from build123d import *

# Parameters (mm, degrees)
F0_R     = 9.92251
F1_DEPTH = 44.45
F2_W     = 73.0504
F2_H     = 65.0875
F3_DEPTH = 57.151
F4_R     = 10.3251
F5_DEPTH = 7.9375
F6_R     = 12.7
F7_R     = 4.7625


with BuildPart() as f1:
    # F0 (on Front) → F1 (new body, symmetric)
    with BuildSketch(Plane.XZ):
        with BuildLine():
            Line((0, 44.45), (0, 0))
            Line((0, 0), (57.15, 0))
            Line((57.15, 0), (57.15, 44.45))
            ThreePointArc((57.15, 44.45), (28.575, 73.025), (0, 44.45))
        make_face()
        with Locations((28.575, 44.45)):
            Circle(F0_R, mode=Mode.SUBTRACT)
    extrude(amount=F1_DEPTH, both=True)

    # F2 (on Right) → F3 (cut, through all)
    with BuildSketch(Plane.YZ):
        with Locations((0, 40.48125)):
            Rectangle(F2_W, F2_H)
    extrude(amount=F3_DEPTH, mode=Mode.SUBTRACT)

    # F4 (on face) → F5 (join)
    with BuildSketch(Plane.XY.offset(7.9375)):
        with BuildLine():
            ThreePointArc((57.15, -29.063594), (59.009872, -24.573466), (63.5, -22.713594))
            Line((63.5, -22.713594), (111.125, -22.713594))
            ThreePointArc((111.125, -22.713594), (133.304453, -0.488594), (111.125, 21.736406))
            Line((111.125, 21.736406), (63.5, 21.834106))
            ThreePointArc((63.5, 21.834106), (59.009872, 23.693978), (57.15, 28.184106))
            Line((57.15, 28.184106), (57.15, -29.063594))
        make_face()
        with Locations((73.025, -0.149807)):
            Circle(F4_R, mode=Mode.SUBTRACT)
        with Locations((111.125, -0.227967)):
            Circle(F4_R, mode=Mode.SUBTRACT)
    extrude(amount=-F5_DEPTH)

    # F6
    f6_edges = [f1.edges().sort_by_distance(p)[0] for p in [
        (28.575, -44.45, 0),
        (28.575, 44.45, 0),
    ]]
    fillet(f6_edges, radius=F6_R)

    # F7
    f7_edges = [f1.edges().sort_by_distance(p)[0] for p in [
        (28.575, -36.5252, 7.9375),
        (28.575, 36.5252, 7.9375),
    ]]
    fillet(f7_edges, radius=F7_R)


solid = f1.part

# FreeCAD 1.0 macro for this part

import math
import FreeCAD as App
import Part
import Sketcher
Q = App.Units.Quantity


def edges_at(feature, points):
    """Names of the edges that pass closest to the given points."""
    edges = feature.Shape.Edges
    near = lambda p: min(range(len(edges)), key=lambda i: edges[i].distToShape(Part.Vertex(*p))[0])
    return sorted({f"Edge{near(p) + 1}" for p in points})


def add_polygon(sketch, points):
    """Adds a closed chain of lines whose ends are joined by coincident constraints."""
    first, n = sketch.GeometryCount, len(points)
    for a, b in zip(points, points[1:] + points[:1]):
        sketch.addGeometry(Part.LineSegment(App.Vector(*a, 0), App.Vector(*b, 0)), False)
    for i in range(n):
        sketch.addConstraint(Sketcher.Constraint("Coincident", first + i, 2, first + (i + 1) % n, 1))

doc = App.newDocument("Part")
body = doc.addObject("PartDesign::Body", "Body")

# Sketch on XZ plane
sketch1 = body.newObject("Sketcher::SketchObject", "Sketch")
sketch1.AttachmentSupport = (doc.getObject("XZ_Plane"), [""])
sketch1.MapMode = "FlatFace"
sketch1.addGeometry([
    Part.LineSegment(App.Vector(0, 44, 0), App.Vector(0, 0, 0)),  # 0
    Part.LineSegment(App.Vector(0, 0, 0), App.Vector(57, 0, 0)),  # 1
    Part.LineSegment(App.Vector(57, 0, 0), App.Vector(57, 44, 0)),  # 2
    Part.ArcOfCircle(Part.Circle(App.Vector(29, 44, 0), App.Vector(0, 0, 1), 29), math.radians(0), math.radians(180)),  # 3
    Part.Circle(App.Vector(29, 44, 0), App.Vector(0, 0, 1), 10),  # 4
], False)
sketch1.addConstraint([
    Sketcher.Constraint("Coincident", 0, 2, 1, 1),
    Sketcher.Constraint("Coincident", 1, 2, 2, 1),
    Sketcher.Constraint("Tangent", 2, 2, 3, 1),
    Sketcher.Constraint("Tangent", 3, 2, 0, 1),
    Sketcher.Constraint("Vertical", 0),
    Sketcher.Constraint("Horizontal", 1),
    Sketcher.Constraint("Vertical", 2),
    Sketcher.Constraint("Coincident", 0, 2, -1, 1),
    Sketcher.Constraint("Coincident", 4, 3, 3, 3),
    Sketcher.Constraint("Radius", 3, Q("1.125 in")),
    Sketcher.Constraint("Diameter", 4, Q("0.7813 in")),
    Sketcher.Constraint("DistanceY", 0, 2, 0, 1, Q("1.75 in")),
])
pad1 = body.newObject("PartDesign::Pad", "Pad")
pad1.Profile = sketch1
pad1.Length = Q("3.5 in")
pad1.Midplane = True

# Sketch on YZ plane
sketch2 = body.newObject("Sketcher::SketchObject", "Sketch001")
sketch2.AttachmentSupport = (doc.getObject("YZ_Plane"), [""])
sketch2.MapMode = "FlatFace"
add_polygon(sketch2, [(-37, 73), (-37, 8), (37, 8), (37, 73)])  # lines 0-3
sketch2.addConstraint([
    Sketcher.Constraint("Vertical", 0),
    Sketcher.Constraint("Horizontal", 1),
    Sketcher.Constraint("Vertical", 2),
    Sketcher.Constraint("Horizontal", 3),
    Sketcher.Constraint("DistanceX", 1, 1, 1, 2, Q("2.876 in")),
    Sketcher.Constraint("DistanceY", 0, 2, 0, 1, Q("2.5625 in")),
    Sketcher.Constraint("DistanceX", 0, 2, -1, 1, Q("1.438 in")),
    Sketcher.Constraint("DistanceY", -1, 1, 0, 2, Q("0.3125 in")),
])
pocket1 = body.newObject("PartDesign::Pocket", "Pocket")
pocket1.Profile = sketch2
pocket1.Type = "ThroughAll"
pocket1.Reversed = True

# Sketch on XY plane
sketch3 = body.newObject("Sketcher::SketchObject", "Sketch002")
sketch3.AttachmentSupport = (doc.getObject("XY_Plane"), [""])
sketch3.MapMode = "FlatFace"
sketch3.AttachmentOffset = App.Placement(App.Vector(0, 0, 0.3125 * 25.4), App.Rotation())
sketch3.addGeometry([
    Part.ArcOfCircle(Part.Circle(App.Vector(64, -29, 0), App.Vector(0, 0, 1), 6), math.radians(90), math.radians(180)),  # 0
    Part.LineSegment(App.Vector(64, -23, 0), App.Vector(111, -23, 0)),  # 1
    Part.ArcOfCircle(Part.Circle(App.Vector(111, 0, 0), App.Vector(0, 0, 1), 22), math.radians(-90), math.radians(90)),  # 2
    Part.LineSegment(App.Vector(111, 22, 0), App.Vector(64, 22, 0)),  # 3
    Part.ArcOfCircle(Part.Circle(App.Vector(64, 28, 0), App.Vector(0, 0, 1), 6), math.radians(-180), math.radians(-90)),  # 4
    Part.LineSegment(App.Vector(57, 28, 0), App.Vector(57, -29, 0)),  # 5
    Part.Circle(App.Vector(111, 0, 0), App.Vector(0, 0, 1), 10),  # 6
    Part.Circle(App.Vector(73, 0, 0), App.Vector(0, 0, 1), 10),  # 7
], False)
sketch3.addConstraint([
    Sketcher.Constraint("Tangent", 0, 1, 1, 1),
    Sketcher.Constraint("Coincident", 1, 2, 2, 1),
    Sketcher.Constraint("Tangent", 2, 2, 3, 1),
    Sketcher.Constraint("Coincident", 3, 2, 4, 2),
    Sketcher.Constraint("Tangent", 4, 1, 5, 1),
    Sketcher.Constraint("Tangent", 5, 2, 0, 2),
    Sketcher.Constraint("Horizontal", 1),
    Sketcher.Constraint("Vertical", 5),
    Sketcher.Constraint("Equal", 0, 4),
    Sketcher.Constraint("Equal", 6, 7),
    Sketcher.Constraint("Vertical", 6, 3, 1, 2),
    Sketcher.Constraint("Vertical", 1, 2, 2, 2),
    Sketcher.Constraint("Vertical", 0, 1, 3, 2),
    Sketcher.Constraint("Radius", 0, Q("0.25 in")),
    Sketcher.Constraint("Diameter", 6, Q("0.813 in")),
    Sketcher.Constraint("DistanceX", -1, 1, 0, 3, Q("2.5 in")),
    Sketcher.Constraint("DistanceX", 7, 3, 6, 3, Q("1.5 in")),
    Sketcher.Constraint("DistanceX", 1, 1, 1, 2, Q("1.875 in")),
    Sketcher.Constraint("DistanceY", 1, 2, 2, 2, Q("1.75 in")),
    Sketcher.Constraint("DistanceY", 5, 2, 5, 1, 57.2477),
    Sketcher.Constraint("DistanceY", 6, 3, 7, 3, 0.07816),
    Sketcher.Constraint("DistanceY", 0, 3, -1, 1, 29.063594),
    Sketcher.Constraint("DistanceY", 6, 3, -1, 1, 0.227967),
])
pad2 = body.newObject("PartDesign::Pad", "Pad001")
pad2.Profile = sketch3
pad2.Length = Q("0.3125 in")
pad2.Reversed = True
doc.recompute()

fillet = body.newObject("PartDesign::Fillet", "Fillet")
fillet.Base = (pad2, edges_at(pad2, [(28.575, -44.45, 0), (28.575, 44.45, 0)]))
fillet.Radius = Q("0.5 in")
doc.recompute()

fillet2 = body.newObject("PartDesign::Fillet", "Fillet001")
fillet2.Base = (fillet, edges_at(fillet, [(28.575, -36.525, 7.938), (28.575, 36.525, 7.938)]))
fillet2.Radius = Q("0.1875 in")

doc.recompute()
